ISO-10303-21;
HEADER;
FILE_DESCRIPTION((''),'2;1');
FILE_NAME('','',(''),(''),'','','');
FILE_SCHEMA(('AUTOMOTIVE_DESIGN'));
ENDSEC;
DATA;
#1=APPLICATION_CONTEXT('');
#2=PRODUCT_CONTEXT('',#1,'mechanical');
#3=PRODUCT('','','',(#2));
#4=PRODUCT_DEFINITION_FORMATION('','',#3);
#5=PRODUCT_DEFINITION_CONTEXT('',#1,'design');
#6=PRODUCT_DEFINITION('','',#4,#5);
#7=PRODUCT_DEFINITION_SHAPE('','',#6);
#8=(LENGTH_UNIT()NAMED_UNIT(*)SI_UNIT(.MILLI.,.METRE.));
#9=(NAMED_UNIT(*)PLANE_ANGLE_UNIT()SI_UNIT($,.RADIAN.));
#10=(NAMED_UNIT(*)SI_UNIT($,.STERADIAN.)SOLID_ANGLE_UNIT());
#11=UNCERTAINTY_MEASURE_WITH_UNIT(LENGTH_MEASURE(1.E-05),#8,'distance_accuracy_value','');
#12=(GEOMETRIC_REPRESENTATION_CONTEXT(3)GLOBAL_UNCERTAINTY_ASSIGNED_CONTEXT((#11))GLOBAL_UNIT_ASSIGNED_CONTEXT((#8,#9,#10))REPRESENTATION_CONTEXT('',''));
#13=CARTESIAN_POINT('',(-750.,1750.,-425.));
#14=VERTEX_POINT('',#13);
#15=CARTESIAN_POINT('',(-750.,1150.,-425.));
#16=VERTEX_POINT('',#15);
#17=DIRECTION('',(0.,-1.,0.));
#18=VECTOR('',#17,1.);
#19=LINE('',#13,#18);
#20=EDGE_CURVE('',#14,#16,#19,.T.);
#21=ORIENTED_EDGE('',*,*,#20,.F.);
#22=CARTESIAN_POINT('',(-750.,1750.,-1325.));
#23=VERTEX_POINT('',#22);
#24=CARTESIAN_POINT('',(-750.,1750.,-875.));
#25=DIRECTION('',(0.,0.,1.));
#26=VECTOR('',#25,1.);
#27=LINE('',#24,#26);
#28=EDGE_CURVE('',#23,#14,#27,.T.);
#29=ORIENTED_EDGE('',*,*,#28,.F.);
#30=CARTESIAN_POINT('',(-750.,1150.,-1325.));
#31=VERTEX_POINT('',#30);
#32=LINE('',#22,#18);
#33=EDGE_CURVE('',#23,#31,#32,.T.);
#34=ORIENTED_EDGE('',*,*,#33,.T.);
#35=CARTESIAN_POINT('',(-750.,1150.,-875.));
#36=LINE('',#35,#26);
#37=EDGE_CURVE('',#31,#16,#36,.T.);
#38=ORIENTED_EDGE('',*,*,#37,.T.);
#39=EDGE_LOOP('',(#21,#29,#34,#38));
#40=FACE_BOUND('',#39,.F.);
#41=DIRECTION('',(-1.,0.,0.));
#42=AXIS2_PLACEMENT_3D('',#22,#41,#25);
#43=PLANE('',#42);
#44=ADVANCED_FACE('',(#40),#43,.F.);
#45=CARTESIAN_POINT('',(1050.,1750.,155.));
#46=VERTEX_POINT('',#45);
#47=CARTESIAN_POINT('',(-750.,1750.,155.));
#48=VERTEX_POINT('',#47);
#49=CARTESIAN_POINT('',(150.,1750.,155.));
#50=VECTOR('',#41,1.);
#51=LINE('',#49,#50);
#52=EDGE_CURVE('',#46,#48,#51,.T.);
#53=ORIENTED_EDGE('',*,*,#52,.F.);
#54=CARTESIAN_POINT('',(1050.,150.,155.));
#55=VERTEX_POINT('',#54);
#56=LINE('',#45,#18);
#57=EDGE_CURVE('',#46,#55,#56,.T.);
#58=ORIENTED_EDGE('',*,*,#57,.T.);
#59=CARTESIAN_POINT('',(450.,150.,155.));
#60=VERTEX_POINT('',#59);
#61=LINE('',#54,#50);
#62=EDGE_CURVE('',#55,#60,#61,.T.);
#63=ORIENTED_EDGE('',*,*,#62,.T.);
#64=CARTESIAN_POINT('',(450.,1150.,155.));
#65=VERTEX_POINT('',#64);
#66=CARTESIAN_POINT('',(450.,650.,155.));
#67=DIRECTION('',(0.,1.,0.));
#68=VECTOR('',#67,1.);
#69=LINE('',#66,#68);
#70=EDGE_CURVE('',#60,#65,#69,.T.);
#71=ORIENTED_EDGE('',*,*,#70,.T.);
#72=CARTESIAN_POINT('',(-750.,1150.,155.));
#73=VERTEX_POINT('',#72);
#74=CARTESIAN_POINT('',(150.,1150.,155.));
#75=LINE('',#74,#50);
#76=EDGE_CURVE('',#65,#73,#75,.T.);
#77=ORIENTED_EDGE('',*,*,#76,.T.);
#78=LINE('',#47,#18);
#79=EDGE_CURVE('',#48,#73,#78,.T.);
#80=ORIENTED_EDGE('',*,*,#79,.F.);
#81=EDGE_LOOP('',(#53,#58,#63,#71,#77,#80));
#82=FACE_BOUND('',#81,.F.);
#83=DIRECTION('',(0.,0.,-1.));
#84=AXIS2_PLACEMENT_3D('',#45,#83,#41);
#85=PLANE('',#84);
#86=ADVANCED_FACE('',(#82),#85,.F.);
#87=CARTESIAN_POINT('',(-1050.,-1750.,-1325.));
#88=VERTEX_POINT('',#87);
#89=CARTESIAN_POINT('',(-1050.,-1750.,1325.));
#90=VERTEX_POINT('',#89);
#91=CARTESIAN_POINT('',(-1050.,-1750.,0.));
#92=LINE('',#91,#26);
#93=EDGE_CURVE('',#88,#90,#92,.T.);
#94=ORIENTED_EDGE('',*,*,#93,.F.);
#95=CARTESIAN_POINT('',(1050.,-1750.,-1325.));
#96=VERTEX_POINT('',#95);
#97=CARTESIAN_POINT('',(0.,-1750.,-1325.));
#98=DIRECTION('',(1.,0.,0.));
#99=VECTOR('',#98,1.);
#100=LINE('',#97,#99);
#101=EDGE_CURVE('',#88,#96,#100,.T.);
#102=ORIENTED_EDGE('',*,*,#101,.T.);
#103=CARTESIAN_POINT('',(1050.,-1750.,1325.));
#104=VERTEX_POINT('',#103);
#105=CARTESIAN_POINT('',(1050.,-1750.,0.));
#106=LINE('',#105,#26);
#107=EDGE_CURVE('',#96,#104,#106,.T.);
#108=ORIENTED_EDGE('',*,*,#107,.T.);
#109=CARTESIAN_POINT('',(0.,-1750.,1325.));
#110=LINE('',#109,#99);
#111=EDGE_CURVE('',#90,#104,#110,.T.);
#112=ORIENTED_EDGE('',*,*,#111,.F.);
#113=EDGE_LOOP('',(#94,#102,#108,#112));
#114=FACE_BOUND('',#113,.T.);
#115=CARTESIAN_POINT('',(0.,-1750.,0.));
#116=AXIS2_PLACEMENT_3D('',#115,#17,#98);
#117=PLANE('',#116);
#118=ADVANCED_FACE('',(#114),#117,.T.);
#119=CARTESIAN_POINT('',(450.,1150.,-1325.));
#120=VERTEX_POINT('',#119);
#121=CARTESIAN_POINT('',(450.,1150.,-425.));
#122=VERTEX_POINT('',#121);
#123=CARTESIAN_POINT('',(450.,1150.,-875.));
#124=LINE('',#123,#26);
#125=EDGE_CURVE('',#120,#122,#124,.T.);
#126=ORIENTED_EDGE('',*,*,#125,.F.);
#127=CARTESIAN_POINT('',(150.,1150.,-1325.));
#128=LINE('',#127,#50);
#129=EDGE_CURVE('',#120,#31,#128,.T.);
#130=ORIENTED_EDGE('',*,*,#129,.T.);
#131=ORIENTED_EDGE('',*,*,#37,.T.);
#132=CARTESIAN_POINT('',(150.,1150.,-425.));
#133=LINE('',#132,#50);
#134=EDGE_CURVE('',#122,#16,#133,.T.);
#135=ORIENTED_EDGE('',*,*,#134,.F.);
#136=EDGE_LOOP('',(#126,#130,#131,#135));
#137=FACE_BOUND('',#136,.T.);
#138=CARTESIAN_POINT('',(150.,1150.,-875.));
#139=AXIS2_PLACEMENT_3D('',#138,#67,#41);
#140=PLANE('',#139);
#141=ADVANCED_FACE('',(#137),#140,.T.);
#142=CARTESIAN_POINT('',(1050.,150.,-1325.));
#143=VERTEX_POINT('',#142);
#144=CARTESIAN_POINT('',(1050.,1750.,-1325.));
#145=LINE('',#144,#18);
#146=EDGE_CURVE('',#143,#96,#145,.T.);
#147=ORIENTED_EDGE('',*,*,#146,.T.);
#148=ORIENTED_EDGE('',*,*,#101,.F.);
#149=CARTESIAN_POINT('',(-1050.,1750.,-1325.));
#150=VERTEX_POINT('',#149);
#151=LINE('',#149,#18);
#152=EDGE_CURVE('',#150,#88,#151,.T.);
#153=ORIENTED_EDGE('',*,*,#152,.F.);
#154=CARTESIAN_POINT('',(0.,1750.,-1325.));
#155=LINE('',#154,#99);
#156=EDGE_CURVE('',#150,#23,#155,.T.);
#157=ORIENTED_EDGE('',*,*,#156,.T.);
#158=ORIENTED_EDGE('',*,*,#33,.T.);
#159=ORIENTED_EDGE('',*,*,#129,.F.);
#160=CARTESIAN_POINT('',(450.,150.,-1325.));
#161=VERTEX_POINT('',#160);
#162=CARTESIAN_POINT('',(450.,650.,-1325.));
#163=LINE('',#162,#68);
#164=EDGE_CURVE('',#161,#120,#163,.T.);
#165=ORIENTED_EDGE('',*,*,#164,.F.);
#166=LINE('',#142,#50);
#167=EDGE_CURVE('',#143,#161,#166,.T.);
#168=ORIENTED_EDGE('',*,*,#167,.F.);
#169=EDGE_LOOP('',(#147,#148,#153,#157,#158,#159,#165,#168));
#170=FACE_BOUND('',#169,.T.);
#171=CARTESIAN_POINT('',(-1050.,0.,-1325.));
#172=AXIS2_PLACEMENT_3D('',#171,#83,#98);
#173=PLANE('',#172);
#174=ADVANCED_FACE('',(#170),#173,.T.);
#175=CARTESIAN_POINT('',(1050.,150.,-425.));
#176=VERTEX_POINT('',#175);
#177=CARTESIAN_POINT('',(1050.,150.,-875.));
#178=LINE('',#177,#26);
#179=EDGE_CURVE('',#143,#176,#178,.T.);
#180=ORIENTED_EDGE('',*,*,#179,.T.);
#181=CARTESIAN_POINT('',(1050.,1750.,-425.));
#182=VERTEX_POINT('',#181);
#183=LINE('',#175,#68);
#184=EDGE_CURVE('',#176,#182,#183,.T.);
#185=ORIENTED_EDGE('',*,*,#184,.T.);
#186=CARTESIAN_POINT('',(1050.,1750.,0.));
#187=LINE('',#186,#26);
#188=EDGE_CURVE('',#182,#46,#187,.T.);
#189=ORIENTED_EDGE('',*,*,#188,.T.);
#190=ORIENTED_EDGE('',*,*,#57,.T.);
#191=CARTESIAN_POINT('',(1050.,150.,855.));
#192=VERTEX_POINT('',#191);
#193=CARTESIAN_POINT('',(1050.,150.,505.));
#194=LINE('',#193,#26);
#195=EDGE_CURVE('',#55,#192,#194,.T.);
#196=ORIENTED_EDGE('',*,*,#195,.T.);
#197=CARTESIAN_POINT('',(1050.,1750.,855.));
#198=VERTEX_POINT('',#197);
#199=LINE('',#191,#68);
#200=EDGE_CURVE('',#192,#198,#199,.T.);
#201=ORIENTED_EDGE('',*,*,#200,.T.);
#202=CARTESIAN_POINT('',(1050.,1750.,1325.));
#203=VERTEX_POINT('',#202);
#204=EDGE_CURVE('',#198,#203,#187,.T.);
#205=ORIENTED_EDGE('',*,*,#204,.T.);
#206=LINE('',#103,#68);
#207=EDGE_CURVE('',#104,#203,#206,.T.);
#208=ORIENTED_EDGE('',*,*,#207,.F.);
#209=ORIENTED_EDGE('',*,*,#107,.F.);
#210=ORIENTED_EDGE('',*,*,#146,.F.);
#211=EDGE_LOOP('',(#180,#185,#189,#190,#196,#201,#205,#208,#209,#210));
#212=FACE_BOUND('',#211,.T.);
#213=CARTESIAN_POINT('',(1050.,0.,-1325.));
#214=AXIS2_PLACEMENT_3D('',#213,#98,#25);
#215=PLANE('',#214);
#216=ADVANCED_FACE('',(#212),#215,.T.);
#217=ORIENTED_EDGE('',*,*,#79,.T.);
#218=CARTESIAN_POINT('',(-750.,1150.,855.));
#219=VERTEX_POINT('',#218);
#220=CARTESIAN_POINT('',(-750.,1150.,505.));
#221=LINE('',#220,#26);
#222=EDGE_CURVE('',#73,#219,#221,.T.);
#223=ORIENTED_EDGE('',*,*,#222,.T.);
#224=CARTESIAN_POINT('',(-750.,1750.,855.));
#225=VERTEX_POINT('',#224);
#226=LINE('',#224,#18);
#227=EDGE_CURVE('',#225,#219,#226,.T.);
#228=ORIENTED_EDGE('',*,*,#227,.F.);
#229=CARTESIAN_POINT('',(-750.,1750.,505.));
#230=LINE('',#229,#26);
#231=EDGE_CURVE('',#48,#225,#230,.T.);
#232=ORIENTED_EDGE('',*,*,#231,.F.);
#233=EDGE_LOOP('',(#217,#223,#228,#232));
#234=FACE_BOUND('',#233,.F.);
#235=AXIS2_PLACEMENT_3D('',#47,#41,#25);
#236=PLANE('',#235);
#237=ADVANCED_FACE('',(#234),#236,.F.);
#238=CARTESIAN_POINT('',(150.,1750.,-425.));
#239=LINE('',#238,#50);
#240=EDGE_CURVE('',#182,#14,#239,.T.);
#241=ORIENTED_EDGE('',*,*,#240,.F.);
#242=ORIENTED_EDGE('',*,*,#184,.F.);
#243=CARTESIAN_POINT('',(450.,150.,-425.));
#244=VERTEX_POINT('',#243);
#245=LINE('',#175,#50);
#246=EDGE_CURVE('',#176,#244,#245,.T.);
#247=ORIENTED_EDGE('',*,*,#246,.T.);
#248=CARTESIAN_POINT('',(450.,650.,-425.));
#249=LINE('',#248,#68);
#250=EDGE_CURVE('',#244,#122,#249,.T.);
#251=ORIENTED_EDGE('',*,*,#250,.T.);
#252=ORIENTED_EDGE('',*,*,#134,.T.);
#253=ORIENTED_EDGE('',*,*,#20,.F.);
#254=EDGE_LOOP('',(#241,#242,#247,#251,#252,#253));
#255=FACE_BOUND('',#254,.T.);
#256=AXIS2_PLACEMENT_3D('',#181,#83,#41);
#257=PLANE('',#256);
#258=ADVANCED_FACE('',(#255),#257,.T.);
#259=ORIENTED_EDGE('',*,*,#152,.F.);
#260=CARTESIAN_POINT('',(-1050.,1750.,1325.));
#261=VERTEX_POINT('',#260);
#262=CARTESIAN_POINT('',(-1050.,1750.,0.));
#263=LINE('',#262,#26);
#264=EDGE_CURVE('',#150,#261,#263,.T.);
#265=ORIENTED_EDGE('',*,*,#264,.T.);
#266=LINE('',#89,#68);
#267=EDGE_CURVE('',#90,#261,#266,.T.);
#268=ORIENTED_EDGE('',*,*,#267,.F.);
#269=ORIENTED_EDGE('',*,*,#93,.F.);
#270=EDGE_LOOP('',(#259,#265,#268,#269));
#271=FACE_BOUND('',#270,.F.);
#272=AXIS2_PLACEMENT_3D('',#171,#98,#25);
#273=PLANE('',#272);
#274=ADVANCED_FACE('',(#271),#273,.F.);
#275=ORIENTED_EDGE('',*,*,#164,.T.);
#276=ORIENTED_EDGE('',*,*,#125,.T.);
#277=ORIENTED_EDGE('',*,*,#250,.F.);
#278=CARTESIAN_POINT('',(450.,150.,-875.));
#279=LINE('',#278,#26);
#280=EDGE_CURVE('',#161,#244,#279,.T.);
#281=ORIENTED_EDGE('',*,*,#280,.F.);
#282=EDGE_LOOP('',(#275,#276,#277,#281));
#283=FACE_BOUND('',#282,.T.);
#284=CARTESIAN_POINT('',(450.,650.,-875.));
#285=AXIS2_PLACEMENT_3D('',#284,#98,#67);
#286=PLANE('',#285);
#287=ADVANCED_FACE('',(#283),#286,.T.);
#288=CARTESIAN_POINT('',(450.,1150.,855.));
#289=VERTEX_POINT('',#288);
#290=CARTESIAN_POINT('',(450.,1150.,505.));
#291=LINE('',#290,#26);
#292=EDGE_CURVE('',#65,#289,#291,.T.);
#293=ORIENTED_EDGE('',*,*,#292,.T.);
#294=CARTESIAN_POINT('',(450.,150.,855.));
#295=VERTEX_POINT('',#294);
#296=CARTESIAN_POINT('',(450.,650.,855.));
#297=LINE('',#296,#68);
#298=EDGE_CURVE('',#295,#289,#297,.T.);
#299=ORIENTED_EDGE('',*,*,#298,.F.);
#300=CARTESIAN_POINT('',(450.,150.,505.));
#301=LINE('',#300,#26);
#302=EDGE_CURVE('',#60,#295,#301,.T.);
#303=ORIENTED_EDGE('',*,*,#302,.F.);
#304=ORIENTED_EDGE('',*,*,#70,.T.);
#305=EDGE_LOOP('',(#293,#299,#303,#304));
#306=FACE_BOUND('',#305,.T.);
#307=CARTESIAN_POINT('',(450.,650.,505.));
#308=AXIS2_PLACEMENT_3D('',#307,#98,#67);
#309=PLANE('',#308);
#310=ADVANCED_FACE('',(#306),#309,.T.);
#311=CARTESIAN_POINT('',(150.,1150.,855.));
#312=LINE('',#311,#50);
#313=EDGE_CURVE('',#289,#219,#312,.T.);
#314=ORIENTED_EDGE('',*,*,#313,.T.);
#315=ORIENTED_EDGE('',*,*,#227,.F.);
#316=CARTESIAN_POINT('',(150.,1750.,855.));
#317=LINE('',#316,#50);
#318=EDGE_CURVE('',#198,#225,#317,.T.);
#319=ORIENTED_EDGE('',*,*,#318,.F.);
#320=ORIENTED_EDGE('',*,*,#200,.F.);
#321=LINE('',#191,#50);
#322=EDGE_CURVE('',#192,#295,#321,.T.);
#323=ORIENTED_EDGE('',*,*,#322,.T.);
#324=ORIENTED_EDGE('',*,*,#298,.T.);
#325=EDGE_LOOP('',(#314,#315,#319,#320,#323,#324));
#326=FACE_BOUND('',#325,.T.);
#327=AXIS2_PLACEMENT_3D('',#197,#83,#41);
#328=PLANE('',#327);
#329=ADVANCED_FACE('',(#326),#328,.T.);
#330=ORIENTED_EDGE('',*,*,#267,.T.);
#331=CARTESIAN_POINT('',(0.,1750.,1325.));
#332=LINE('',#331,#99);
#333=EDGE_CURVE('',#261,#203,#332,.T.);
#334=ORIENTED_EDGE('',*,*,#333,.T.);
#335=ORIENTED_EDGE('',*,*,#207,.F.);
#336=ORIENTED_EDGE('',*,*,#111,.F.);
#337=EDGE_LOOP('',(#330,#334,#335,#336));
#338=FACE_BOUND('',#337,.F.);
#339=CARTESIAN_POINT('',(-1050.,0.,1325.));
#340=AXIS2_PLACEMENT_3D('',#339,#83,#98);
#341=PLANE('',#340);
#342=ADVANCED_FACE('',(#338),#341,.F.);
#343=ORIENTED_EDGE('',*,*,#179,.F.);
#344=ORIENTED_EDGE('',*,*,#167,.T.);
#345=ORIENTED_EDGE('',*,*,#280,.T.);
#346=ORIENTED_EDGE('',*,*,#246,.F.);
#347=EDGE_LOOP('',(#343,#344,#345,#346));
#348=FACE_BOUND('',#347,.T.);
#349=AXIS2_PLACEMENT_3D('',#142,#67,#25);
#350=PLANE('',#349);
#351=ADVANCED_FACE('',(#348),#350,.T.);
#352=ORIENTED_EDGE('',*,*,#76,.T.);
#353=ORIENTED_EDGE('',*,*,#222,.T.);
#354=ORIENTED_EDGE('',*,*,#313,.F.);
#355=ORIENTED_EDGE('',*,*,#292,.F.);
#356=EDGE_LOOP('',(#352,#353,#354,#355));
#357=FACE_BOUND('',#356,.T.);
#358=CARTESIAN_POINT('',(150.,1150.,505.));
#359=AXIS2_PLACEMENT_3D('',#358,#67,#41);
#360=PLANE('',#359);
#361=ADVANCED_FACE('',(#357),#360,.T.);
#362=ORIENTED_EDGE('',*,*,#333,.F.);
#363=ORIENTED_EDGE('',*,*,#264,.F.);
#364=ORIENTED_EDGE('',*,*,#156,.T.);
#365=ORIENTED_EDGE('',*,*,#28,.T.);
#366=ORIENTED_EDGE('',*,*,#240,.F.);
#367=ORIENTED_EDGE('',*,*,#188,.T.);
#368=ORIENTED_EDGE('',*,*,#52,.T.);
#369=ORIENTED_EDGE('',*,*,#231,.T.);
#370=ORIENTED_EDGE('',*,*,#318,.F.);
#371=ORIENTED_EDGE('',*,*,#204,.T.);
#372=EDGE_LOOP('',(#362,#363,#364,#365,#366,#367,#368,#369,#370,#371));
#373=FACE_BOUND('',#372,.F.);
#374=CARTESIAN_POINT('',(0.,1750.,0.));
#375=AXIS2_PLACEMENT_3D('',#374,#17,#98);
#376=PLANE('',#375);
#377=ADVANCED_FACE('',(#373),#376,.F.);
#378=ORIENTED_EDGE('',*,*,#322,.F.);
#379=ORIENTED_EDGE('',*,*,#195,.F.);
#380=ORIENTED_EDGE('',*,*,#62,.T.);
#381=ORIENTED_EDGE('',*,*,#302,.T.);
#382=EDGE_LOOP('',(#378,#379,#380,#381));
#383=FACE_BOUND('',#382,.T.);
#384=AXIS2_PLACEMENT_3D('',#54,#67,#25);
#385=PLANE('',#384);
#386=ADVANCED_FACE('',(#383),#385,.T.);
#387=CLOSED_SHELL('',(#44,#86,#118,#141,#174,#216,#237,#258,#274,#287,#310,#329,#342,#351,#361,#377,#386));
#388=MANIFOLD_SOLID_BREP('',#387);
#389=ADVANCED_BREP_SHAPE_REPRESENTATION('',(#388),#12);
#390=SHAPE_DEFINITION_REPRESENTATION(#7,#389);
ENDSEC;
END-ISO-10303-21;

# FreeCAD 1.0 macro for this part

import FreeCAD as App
import Part
import Sketcher
from FreeCAD import Vector
Q = App.Units.Quantity


def add_polygon(sketch, points):
    """Adds a closed chain of lines whose ends are joined by coincident constraints."""
    first, n = sketch.GeometryCount, len(points)
    for a, b in zip(points, points[1:] + points[:1]):
        sketch.addGeometry(Part.LineSegment(App.Vector(*a, 0), App.Vector(*b, 0)), False)
    for i in range(n):
        sketch.addConstraint(Sketcher.Constraint("Coincident", first + i, 2, first + (i + 1) % n, 1))

doc = App.newDocument("Part")
body = doc.addObject("PartDesign::Body", "Body")

# Sketch on XZ plane
sketch1 = body.newObject("Sketcher::SketchObject", "Sketch")
sketch1.AttachmentSupport = (doc.getObject("XZ_Plane"), [""])
sketch1.MapMode = "FlatFace"
add_polygon(sketch1, [(-1050, 1325), (-1050, -1325), (1050, -1325), (1050, 1325)])  # lines 0-3
sketch1.addConstraint([
    Sketcher.Constraint("Vertical", 0),
    Sketcher.Constraint("Horizontal", 1),
    Sketcher.Constraint("Vertical", 2),
    Sketcher.Constraint("Horizontal", 3),
    Sketcher.Constraint("Symmetric", 0, 2, 2, 2, -1, 1),
    Sketcher.Constraint("DistanceX", 1, 1, 1, 2, Q("2100 mm")),
    Sketcher.Constraint("DistanceY", 0, 2, 0, 1, Q("2650 mm")),
])
pad1 = body.newObject("PartDesign::Pad", "Pad")
pad1.Profile = sketch1
pad1.Length = 3500
pad1.Midplane = True

# Sketch on XZ plane
sketch2 = body.newObject("Sketcher::SketchObject", "Sketch001")
sketch2.AttachmentSupport = (doc.getObject("XZ_Plane"), [""])
sketch2.MapMode = "FlatFace"
sketch2.AttachmentOffset = App.Placement(Vector(0, 0, -1750), App.Rotation())
add_polygon(sketch2, [(1050, -425), (1050, -1325), (-750, -1325), (-750, -425)])  # lines 0-3
add_polygon(sketch2, [(1050, 855), (1050, 155), (-750, 155), (-750, 855)])  # lines 4-7
sketch2.addConstraint([
    Sketcher.Constraint("Vertical", 0),
    Sketcher.Constraint("Horizontal", 1),
    Sketcher.Constraint("Vertical", 2),
    Sketcher.Constraint("Horizontal", 3),
    Sketcher.Constraint("Vertical", 4),
    Sketcher.Constraint("Horizontal", 5),
    Sketcher.Constraint("Vertical", 6),
    Sketcher.Constraint("Horizontal", 7),
    Sketcher.Constraint("Vertical", 3, 2, 4, 2),
    Sketcher.Constraint("Vertical", 2, 2, 5, 2),
    Sketcher.Constraint("DistanceX", 1, 2, 1, 1, Q("1800 mm")),
    Sketcher.Constraint("DistanceY", 0, 2, 0, 1, Q("900 mm")),
    Sketcher.Constraint("DistanceY", 4, 2, 4, 1, Q("700 mm")),
    Sketcher.Constraint("DistanceX", -1, 1, 0, 2, Q("1050 mm")),
    Sketcher.Constraint("DistanceY", 0, 2, -1, 1, Q("1325 mm")),
    Sketcher.Constraint("DistanceY", -1, 1, 4, 2, Q("155 mm")),
])
pocket1 = body.newObject("PartDesign::Pocket", "Pocket")
pocket1.Profile = sketch2
pocket1.Length = 600
pocket1.Reversed = True

# Sketch on YZ plane
sketch3 = body.newObject("Sketcher::SketchObject", "Sketch002")
sketch3.AttachmentSupport = (doc.getObject("YZ_Plane"), [""])
sketch3.MapMode = "FlatFace"
sketch3.AttachmentOffset = App.Placement(Vector(0, 0, 1050), App.Rotation())
add_polygon(sketch3, [(150, -425), (150, -1325), (1150, -1325), (1150, -425)])  # lines 0-3
add_polygon(sketch3, [(150, 855), (150, 155), (1150, 155), (1150, 855)])  # lines 4-7
sketch3.addConstraint([
    Sketcher.Constraint("Vertical", 0),
    Sketcher.Constraint("Horizontal", 1),
    Sketcher.Constraint("Vertical", 2),
    Sketcher.Constraint("Horizontal", 3),
    Sketcher.Constraint("Vertical", 4),
    Sketcher.Constraint("Horizontal", 5),
    Sketcher.Constraint("Vertical", 6),
    Sketcher.Constraint("Horizontal", 7),
    Sketcher.Constraint("Vertical", 3, 2, 4, 2),
    Sketcher.Constraint("Vertical", 2, 2, 5, 2),
    Sketcher.Constraint("DistanceX", 1, 1, 1, 2, Q("1000 mm")),
    Sketcher.Constraint("DistanceY", 0, 2, 0, 1, Q("900 mm")),
    Sketcher.Constraint("DistanceY", 4, 2, 4, 1, Q("700 mm")),
    Sketcher.Constraint("DistanceX", -1, 1, 0, 2, Q("150 mm")),
    Sketcher.Constraint("DistanceY", 0, 2, -1, 1, Q("1325 mm")),
    Sketcher.Constraint("DistanceY", -1, 1, 4, 2, Q("155 mm")),
])
pocket2 = body.newObject("PartDesign::Pocket", "Pocket001")
pocket2.Profile = sketch3
pocket2.Length = 600

doc.recompute()
